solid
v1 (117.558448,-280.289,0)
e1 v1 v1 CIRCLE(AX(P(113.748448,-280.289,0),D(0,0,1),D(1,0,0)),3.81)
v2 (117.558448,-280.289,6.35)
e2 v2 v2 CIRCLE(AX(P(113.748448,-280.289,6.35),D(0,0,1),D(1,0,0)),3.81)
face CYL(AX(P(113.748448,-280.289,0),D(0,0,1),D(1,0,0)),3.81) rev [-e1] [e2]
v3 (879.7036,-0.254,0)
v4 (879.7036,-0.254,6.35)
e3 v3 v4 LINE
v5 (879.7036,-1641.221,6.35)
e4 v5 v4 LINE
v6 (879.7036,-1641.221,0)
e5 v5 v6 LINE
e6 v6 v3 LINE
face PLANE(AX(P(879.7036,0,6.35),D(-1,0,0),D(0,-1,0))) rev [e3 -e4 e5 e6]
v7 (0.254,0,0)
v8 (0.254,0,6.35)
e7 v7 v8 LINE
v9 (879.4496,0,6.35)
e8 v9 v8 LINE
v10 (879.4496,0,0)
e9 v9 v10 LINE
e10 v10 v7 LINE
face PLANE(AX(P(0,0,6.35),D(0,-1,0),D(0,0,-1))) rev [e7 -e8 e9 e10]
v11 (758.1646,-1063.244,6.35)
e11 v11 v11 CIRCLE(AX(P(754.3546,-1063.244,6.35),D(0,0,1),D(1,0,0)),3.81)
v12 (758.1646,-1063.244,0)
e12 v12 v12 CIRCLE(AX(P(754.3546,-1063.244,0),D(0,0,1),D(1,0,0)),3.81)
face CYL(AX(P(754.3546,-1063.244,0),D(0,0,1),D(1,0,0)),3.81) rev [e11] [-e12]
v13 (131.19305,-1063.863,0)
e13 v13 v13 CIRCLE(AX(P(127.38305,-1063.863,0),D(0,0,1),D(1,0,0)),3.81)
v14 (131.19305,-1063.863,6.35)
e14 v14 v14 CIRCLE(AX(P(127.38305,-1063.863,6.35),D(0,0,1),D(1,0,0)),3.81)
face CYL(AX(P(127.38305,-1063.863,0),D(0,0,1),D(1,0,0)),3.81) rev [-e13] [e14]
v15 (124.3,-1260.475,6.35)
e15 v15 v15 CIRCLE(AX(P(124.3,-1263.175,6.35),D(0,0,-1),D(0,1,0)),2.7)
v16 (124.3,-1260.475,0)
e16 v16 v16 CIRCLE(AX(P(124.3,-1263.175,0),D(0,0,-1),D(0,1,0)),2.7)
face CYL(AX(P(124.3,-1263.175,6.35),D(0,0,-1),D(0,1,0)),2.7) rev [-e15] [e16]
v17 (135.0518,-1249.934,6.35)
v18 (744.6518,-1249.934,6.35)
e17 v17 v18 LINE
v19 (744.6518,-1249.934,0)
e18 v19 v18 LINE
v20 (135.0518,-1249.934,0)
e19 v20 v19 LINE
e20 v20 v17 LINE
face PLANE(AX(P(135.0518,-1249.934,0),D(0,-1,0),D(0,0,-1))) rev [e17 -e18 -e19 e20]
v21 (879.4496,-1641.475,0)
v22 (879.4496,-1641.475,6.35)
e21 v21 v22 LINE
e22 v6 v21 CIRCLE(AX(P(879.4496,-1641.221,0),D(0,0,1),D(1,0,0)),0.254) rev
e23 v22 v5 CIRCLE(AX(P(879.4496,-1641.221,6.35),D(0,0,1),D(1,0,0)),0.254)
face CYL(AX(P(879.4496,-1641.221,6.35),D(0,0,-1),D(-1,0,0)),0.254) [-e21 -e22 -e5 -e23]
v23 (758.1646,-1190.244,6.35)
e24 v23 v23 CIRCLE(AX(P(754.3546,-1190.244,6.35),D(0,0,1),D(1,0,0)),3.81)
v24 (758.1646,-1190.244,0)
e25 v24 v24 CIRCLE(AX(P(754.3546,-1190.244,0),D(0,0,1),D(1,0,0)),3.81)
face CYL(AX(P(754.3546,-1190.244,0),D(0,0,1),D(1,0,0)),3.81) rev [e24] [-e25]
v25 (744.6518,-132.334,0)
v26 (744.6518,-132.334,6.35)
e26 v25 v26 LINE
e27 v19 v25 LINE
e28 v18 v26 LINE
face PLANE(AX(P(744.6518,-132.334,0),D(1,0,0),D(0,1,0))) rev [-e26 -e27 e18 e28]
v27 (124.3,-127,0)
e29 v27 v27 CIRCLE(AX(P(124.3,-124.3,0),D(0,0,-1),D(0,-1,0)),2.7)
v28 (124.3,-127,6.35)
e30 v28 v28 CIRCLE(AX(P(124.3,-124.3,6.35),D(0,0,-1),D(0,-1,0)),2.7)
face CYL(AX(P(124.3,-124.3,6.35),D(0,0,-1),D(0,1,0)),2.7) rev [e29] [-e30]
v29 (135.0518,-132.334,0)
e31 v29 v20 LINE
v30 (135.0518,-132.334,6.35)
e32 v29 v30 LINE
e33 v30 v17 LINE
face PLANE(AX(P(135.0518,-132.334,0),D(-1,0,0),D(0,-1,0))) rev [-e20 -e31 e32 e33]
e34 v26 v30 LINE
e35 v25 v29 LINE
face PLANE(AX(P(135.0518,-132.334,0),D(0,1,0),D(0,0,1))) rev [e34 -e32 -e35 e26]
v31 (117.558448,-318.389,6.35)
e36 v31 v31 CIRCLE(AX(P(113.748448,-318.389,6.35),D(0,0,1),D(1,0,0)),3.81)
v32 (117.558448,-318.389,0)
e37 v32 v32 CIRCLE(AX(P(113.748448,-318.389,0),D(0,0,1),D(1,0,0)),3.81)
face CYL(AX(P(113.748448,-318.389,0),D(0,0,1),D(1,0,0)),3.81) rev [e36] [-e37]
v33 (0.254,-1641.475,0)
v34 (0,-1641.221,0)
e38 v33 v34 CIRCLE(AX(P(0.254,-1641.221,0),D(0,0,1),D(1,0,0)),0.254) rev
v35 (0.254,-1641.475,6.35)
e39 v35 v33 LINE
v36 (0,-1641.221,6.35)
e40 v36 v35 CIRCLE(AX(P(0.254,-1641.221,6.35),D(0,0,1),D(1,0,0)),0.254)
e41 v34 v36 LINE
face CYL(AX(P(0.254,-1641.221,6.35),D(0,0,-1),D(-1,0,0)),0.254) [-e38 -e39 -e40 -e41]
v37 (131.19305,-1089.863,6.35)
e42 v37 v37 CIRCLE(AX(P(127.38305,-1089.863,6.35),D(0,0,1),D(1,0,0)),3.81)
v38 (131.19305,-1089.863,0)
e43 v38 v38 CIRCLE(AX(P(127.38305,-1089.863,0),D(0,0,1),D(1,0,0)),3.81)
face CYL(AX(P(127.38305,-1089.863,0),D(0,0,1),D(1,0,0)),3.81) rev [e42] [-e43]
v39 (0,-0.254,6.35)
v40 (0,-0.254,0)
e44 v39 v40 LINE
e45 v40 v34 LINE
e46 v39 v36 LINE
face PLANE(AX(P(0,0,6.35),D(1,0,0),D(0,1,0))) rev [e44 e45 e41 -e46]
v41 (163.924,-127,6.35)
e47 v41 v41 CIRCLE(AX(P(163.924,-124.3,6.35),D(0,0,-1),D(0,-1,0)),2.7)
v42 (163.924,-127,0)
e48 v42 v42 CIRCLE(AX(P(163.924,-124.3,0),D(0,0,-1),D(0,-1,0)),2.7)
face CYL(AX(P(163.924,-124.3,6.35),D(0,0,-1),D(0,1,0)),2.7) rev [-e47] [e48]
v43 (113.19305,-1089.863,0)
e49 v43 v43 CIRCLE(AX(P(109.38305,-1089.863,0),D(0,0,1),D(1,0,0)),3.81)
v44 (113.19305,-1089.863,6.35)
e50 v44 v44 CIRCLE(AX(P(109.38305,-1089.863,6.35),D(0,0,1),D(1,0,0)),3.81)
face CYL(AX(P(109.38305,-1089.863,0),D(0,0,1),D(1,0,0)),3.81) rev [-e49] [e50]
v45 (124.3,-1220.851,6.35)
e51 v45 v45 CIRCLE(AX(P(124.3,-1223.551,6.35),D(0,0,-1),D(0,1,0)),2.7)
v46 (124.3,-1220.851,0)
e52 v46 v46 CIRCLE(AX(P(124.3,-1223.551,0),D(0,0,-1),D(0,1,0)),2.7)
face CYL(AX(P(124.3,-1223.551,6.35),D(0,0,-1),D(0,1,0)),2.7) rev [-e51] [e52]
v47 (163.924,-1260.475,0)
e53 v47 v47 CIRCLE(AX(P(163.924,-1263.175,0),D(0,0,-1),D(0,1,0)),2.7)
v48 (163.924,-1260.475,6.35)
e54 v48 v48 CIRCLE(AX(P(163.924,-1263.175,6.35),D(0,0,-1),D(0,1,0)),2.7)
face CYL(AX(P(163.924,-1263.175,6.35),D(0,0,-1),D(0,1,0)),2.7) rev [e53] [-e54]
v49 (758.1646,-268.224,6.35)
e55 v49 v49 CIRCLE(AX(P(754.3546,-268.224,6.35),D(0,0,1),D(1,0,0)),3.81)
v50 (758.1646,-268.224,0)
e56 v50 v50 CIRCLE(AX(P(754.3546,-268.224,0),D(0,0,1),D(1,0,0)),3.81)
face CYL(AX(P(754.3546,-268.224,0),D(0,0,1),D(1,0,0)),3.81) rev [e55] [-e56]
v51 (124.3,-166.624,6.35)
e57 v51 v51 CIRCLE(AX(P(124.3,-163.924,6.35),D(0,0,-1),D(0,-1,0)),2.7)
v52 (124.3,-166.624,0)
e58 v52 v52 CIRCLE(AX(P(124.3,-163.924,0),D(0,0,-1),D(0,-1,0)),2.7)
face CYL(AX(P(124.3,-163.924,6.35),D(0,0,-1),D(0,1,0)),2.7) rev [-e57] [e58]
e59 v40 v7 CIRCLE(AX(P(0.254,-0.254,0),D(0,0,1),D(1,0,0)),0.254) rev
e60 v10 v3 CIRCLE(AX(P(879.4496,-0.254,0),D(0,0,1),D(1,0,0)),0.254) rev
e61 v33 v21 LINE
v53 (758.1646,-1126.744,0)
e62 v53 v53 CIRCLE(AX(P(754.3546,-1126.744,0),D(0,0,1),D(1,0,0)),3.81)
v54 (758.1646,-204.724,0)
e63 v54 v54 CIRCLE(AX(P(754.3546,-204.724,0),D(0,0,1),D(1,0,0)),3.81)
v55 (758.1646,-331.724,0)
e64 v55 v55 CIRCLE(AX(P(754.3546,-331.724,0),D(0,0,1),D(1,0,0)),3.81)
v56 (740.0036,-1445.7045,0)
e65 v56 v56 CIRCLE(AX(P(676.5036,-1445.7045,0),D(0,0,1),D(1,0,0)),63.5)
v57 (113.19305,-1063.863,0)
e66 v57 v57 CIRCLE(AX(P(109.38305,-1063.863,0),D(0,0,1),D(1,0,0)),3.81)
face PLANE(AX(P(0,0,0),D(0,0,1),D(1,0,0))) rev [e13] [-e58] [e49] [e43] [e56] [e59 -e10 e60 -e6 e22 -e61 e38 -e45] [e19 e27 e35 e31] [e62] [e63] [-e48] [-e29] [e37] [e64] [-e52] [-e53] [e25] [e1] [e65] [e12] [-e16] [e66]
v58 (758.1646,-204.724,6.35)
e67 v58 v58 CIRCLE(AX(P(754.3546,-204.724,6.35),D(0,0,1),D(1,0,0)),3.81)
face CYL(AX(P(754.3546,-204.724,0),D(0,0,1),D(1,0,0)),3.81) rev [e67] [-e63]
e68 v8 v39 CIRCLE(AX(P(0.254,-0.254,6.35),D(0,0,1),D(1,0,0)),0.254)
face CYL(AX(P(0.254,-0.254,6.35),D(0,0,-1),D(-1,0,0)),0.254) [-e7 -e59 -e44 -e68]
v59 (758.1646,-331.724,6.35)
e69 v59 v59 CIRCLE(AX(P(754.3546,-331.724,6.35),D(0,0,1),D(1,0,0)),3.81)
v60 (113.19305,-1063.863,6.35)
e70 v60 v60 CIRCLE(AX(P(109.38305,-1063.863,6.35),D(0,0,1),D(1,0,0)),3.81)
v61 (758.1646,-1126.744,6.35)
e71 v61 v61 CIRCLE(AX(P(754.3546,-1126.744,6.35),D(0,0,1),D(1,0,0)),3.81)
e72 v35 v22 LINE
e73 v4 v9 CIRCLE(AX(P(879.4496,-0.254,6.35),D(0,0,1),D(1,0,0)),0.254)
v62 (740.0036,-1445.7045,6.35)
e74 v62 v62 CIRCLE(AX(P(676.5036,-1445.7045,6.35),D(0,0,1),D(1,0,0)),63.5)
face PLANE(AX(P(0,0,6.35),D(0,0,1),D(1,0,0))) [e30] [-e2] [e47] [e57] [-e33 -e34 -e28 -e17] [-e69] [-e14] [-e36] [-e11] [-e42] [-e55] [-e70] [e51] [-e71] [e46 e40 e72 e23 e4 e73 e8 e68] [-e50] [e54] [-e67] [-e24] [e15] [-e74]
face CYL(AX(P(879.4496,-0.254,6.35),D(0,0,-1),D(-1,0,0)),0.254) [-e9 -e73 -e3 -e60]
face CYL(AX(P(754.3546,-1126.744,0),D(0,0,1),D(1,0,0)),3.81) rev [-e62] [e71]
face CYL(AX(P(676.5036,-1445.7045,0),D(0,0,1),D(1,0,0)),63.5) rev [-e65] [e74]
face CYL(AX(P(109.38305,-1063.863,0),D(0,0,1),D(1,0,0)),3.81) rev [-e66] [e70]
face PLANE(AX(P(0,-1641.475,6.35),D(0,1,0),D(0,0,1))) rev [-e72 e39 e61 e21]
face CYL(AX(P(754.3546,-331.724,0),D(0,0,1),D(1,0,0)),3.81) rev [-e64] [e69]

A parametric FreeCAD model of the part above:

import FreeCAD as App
import Part
import Sketcher

V = App.Vector
Q = App.Units.Quantity


def edges_at(feature, points):
    """Names of the edges that pass closest to the given points."""
    edges = feature.Shape.Edges
    near = lambda p: min(range(len(edges)), key=lambda i: edges[i].distToShape(Part.Vertex(*p))[0])
    return sorted({f"Edge{near(p) + 1}" for p in points})

doc = App.newDocument("Part")
params = doc.addObject("Spreadsheet::Sheet", "Params")
for row, (alias, value) in enumerate([
    ("sketch1_width", "34.634 in"),
    ("sketch1_height", "64.625 in"),
    ("pad1_length", "0.25 in"),
    ("fillet_radius", "0.01 in"),
    ("sketch2_width", "24 in"),
    ("sketch2_height", "44 in"),
    ("sketch3_diameter", "0.3 in"),
    ("sketch4_diameter", "5 in"),
], start=1):
    params.set(f"A{row}", alias)
    params.set(f"B{row}", "=" + value)
    params.setAlias(f"B{row}", alias)

body = doc.addObject("PartDesign::Body", "Body")

sketch1 = body.newObject("Sketcher::SketchObject", "Sketch")
sketch1.AttachmentSupport = (doc.getObject("XY_Plane"), [""])
sketch1.MapMode = "FlatFace"
sketch1.addGeometry(Part.LineSegment(V(0, 0, 0), V(0, -1641, 0)), False)
sketch1.addGeometry(Part.LineSegment(V(0, -1641, 0), V(880, -1641, 0)), False)
sketch1.addGeometry(Part.LineSegment(V(880, -1641, 0), V(880, 0, 0)), False)
sketch1.addGeometry(Part.LineSegment(V(880, 0, 0), V(0, 0, 0)), False)
sketch1.addConstraint(Sketcher.Constraint("Coincident", 0, 2, 1, 1))
sketch1.addConstraint(Sketcher.Constraint("Coincident", 1, 2, 2, 1))
sketch1.addConstraint(Sketcher.Constraint("Coincident", 2, 2, 3, 1))
sketch1.addConstraint(Sketcher.Constraint("Coincident", 3, 2, 0, 1))
sketch1.addConstraint(Sketcher.Constraint("Vertical", 0))
sketch1.addConstraint(Sketcher.Constraint("Horizontal", 1))
sketch1.addConstraint(Sketcher.Constraint("Vertical", 2))
sketch1.addConstraint(Sketcher.Constraint("Horizontal", 3))
sketch1.addConstraint(Sketcher.Constraint("Coincident", 3, 2, -1, 1))
sketch1.addConstraint(Sketcher.Constraint("DistanceX", 1, 1, 1, 2, Q("34.634 in")))
sketch1.addConstraint(Sketcher.Constraint("DistanceY", 0, 2, 0, 1, Q("64.625 in")))
sketch1.setExpression("Constraints[9]", "Params.sketch1_width")
sketch1.setExpression("Constraints[10]", "Params.sketch1_height")
pad1 = body.newObject("PartDesign::Pad", "Pad")
pad1.Profile = sketch1
pad1.setExpression("Length", "Params.pad1_length")
doc.recompute()

fillet = body.newObject("PartDesign::Fillet", "Fillet")
fillet.Base = (pad1, edges_at(pad1, [
    (879.704, -1641.475, 3.175),
    (0, -1641.475, 3.175),
    (0, 0, 3.175),
    (879.704, 0, 3.175),
]))
fillet.setExpression("Radius", "Params.fillet_radius")

sketch2 = body.newObject("Sketcher::SketchObject", "Sketch001")
sketch2.AttachmentSupport = (doc.getObject("XY_Plane"), [""])
sketch2.MapMode = "FlatFace"
sketch2.AttachmentOffset = App.Placement(V(0, 0, 0.25 * 25.4), App.Rotation())
sketch2.addGeometry(Part.LineSegment(V(135, -132, 0), V(135, -1250, 0)), False)
sketch2.addGeometry(Part.LineSegment(V(135, -1250, 0), V(745, -1250, 0)), False)
sketch2.addGeometry(Part.LineSegment(V(745, -1250, 0), V(745, -132, 0)), False)
sketch2.addGeometry(Part.LineSegment(V(745, -132, 0), V(135, -132, 0)), False)
sketch2.addConstraint(Sketcher.Constraint("Coincident", 0, 2, 1, 1))
sketch2.addConstraint(Sketcher.Constraint("Coincident", 1, 2, 2, 1))
sketch2.addConstraint(Sketcher.Constraint("Coincident", 2, 2, 3, 1))
sketch2.addConstraint(Sketcher.Constraint("Coincident", 3, 2, 0, 1))
sketch2.addConstraint(Sketcher.Constraint("Vertical", 0))
sketch2.addConstraint(Sketcher.Constraint("Horizontal", 1))
sketch2.addConstraint(Sketcher.Constraint("Vertical", 2))
sketch2.addConstraint(Sketcher.Constraint("Horizontal", 3))
sketch2.addConstraint(Sketcher.Constraint("DistanceX", 1, 1, 1, 2, Q("24 in")))
sketch2.addConstraint(Sketcher.Constraint("DistanceY", 0, 2, 0, 1, Q("44 in")))
sketch2.addConstraint(Sketcher.Constraint("DistanceY", 0, 2, -1, 1, Q("49.21 in")))
sketch2.addConstraint(Sketcher.Constraint("DistanceX", -1, 1, 0, 2, Q("5.317 in")))
sketch2.setExpression("Constraints[8]", "Params.sketch2_width")
sketch2.setExpression("Constraints[9]", "Params.sketch2_height")
pocket1 = body.newObject("PartDesign::Pocket", "Pocket")
pocket1.Profile = sketch2
pocket1.Type = "ThroughAll"

sketch3 = body.newObject("Sketcher::SketchObject", "Sketch002")
sketch3.AttachmentSupport = (doc.getObject("XY_Plane"), [""])
sketch3.MapMode = "FlatFace"
sketch3.AttachmentOffset = App.Placement(V(0, 0, 0.25 * 25.4), App.Rotation())
sketch3.addGeometry(Part.Circle(V(754.4, -204.7, 0), V(0, 0, 1), 3.8), False)
sketch3.addGeometry(Part.Circle(V(754.4, -268.2, 0), V(0, 0, 1), 3.8), False)
sketch3.addGeometry(Part.Circle(V(754.4, -331.7, 0), V(0, 0, 1), 3.8), False)
sketch3.addGeometry(Part.Circle(V(754.4, -1190.2, 0), V(0, 0, 1), 3.8), False)
sketch3.addGeometry(Part.Circle(V(754.4, -1126.7, 0), V(0, 0, 1), 3.8), False)
sketch3.addGeometry(Part.Circle(V(754.4, -1063.2, 0), V(0, 0, 1), 3.8), False)
sketch3.addGeometry(Part.Circle(V(109.4, -1063.9, 0), V(0, 0, 1), 3.8), False)
sketch3.addGeometry(Part.Circle(V(127.4, -1063.9, 0), V(0, 0, 1), 3.8), False)
sketch3.addGeometry(Part.Circle(V(127.4, -1089.9, 0), V(0, 0, 1), 3.8), False)
sketch3.addGeometry(Part.Circle(V(109.4, -1089.9, 0), V(0, 0, 1), 3.8), False)
sketch3.addGeometry(Part.Circle(V(113.7, -280.3, 0), V(0, 0, 1), 3.8), False)
sketch3.addGeometry(Part.Circle(V(113.7, -318.4, 0), V(0, 0, 1), 3.8), False)
sketch3.addConstraint(Sketcher.Constraint("Equal", 0, 1))
sketch3.addConstraint(Sketcher.Constraint("Equal", 1, 2))
sketch3.addConstraint(Sketcher.Constraint("Equal", 2, 3))
sketch3.addConstraint(Sketcher.Constraint("Equal", 3, 4))
sketch3.addConstraint(Sketcher.Constraint("Equal", 4, 5))
sketch3.addConstraint(Sketcher.Constraint("Equal", 5, 6))
sketch3.addConstraint(Sketcher.Constraint("Equal", 6, 7))
sketch3.addConstraint(Sketcher.Constraint("Equal", 7, 8))
sketch3.addConstraint(Sketcher.Constraint("Equal", 8, 9))
sketch3.addConstraint(Sketcher.Constraint("Equal", 9, 10))
sketch3.addConstraint(Sketcher.Constraint("Equal", 10, 11))
sketch3.addConstraint(Sketcher.Constraint("Horizontal", 6, 3, 7, 3))
sketch3.addConstraint(Sketcher.Constraint("Horizontal", 8, 3, 9, 3))
sketch3.addConstraint(Sketcher.Constraint("Vertical", 0, 3, 1, 3))
sketch3.addConstraint(Sketcher.Constraint("Vertical", 1, 3, 2, 3))
sketch3.addConstraint(Sketcher.Constraint("Vertical", 2, 3, 3, 3))
sketch3.addConstraint(Sketcher.Constraint("Vertical", 3, 3, 4, 3))
sketch3.addConstraint(Sketcher.Constraint("Vertical", 4, 3, 5, 3))
sketch3.addConstraint(Sketcher.Constraint("Vertical", 7, 3, 8, 3))
sketch3.addConstraint(Sketcher.Constraint("Vertical", 6, 3, 9, 3))
sketch3.addConstraint(Sketcher.Constraint("Vertical", 10, 3, 11, 3))
sketch3.addConstraint(Sketcher.Constraint("Diameter", 0, Q("0.3 in")))
sketch3.addConstraint(Sketcher.Constraint("DistanceY", 2, 3, 0, 3, Q("5 in")))
sketch3.addConstraint(Sketcher.Constraint("DistanceY", 3, 3, 5, 3, Q("5 in")))
sketch3.addConstraint(Sketcher.Constraint("DistanceY", 1, 3, 0, 3, Q("2.5 in")))
sketch3.addConstraint(Sketcher.Constraint("DistanceY", 3, 3, 2, 3, Q("33.8 in")))
sketch3.addConstraint(Sketcher.Constraint("DistanceY", 3, 3, 4, 3, Q("2.5 in")))
sketch3.addConstraint(Sketcher.Constraint("DistanceY", 11, 3, 10, 3, Q("1.5 in")))
sketch3.addConstraint(Sketcher.Constraint("DistanceY", 0, 3, -1, 1, Q("8.06 in")))
sketch3.addConstraint(Sketcher.Constraint("DistanceX", -1, 1, 0, 3, Q("29.699 in")))
sketch3.addConstraint(Sketcher.Constraint("DistanceY", 10, 3, -1, 1, Q("11.035 in")))
sketch3.addConstraint(Sketcher.Constraint("DistanceY", 6, 3, -1, 1, Q("1063.863 mm")))
sketch3.addConstraint(Sketcher.Constraint("DistanceY", 8, 3, -1, 1, Q("1089.863 mm")))
sketch3.addConstraint(Sketcher.Constraint("DistanceX", 6, 3, 7, 3, Q("18 mm")))
sketch3.addConstraint(Sketcher.Constraint("DistanceX", 6, 3, 10, 3, Q("4.365398 mm")))
sketch3.addConstraint(Sketcher.Constraint("DistanceX", -1, 1, 6, 3, Q("109.38305 mm")))
sketch3.setExpression("Constraints[21]", "Params.sketch3_diameter")
pocket2 = body.newObject("PartDesign::Pocket", "Pocket001")
pocket2.Profile = sketch3
pocket2.Type = "ThroughAll"

sketch4 = body.newObject("Sketcher::SketchObject", "Sketch003")
sketch4.AttachmentSupport = (doc.getObject("XY_Plane"), [""])
sketch4.MapMode = "FlatFace"
sketch4.AttachmentOffset = App.Placement(V(0, 0, 0.25 * 25.4), App.Rotation())
sketch4.addGeometry(Part.Circle(V(677, -1446, 0), V(0, 0, 1), 64), False)
sketch4.addConstraint(Sketcher.Constraint("Diameter", 0, Q("5 in")))
sketch4.addConstraint(Sketcher.Constraint("DistanceX", -1, 1, 0, 3, Q("26.634 in")))
sketch4.addConstraint(Sketcher.Constraint("DistanceY", 0, 3, -1, 1, Q("56.9175 in")))
sketch4.setExpression("Constraints[0]", "Params.sketch4_diameter")
pocket3 = body.newObject("PartDesign::Pocket", "Pocket002")
pocket3.Profile = sketch4
pocket3.Type = "ThroughAll"

sketch5 = body.newObject("Sketcher::SketchObject", "Sketch004")
sketch5.AttachmentSupport = (doc.getObject("XY_Plane"), [""])
sketch5.MapMode = "FlatFace"
sketch5.addGeometry(Part.Circle(V(124.3, -1223.6, 0), V(0, 0, 1), 2.7), False)
sketch5.addGeometry(Part.Circle(V(124.3, -1263.2, 0), V(0, 0, 1), 2.7), False)
sketch5.addGeometry(Part.Circle(V(163.9, -1263.2, 0), V(0, 0, 1), 2.7), False)
sketch5.addGeometry(Part.Circle(V(163.9, -124.3, 0), V(0, 0, 1), 2.7), False)
sketch5.addGeometry(Part.Circle(V(124.3, -124.3, 0), V(0, 0, 1), 2.7), False)
sketch5.addGeometry(Part.Circle(V(124.3, -163.9, 0), V(0, 0, 1), 2.7), False)
sketch5.addConstraint(Sketcher.Constraint("Equal", 0, 1))
sketch5.addConstraint(Sketcher.Constraint("Equal", 1, 2))
sketch5.addConstraint(Sketcher.Constraint("Equal", 2, 3))
sketch5.addConstraint(Sketcher.Constraint("Equal", 3, 4))
sketch5.addConstraint(Sketcher.Constraint("Equal", 4, 5))
sketch5.addConstraint(Sketcher.Constraint("Horizontal", 1, 3, 2, 3))
sketch5.addConstraint(Sketcher.Constraint("Horizontal", 3, 3, 4, 3))
sketch5.addConstraint(Sketcher.Constraint("Vertical", 0, 3, 1, 3))
sketch5.addConstraint(Sketcher.Constraint("Vertical", 2, 3, 3, 3))
sketch5.addConstraint(Sketcher.Constraint("Vertical", 1, 3, 4, 3))
sketch5.addConstraint(Sketcher.Constraint("Vertical", 4, 3, 5, 3))
sketch5.addConstraint(Sketcher.Constraint("Diameter", 0, Q("5.4 mm")))
sketch5.addConstraint(Sketcher.Constraint("DistanceY", 1, 3, 0, 3, Q("1.56 in")))
sketch5.addConstraint(Sketcher.Constraint("DistanceX", 1, 3, 2, 3, Q("1.56 in")))
sketch5.addConstraint(Sketcher.Constraint("DistanceY", 5, 3, 4, 3, Q("1.56 in")))
sketch5.addConstraint(Sketcher.Constraint("DistanceX", -1, 1, 0, 3, Q("124.3 mm")))
sketch5.addConstraint(Sketcher.Constraint("DistanceY", 0, 3, -1, 1, Q("1223.551 mm")))
sketch5.addConstraint(Sketcher.Constraint("DistanceY", 3, 3, -1, 1, Q("124.3 mm")))
pocket4 = body.newObject("PartDesign::Pocket", "Pocket003")
pocket4.Profile = sketch5
pocket4.Type = "ThroughAll"
pocket4.Reversed = True

doc.recompute()
